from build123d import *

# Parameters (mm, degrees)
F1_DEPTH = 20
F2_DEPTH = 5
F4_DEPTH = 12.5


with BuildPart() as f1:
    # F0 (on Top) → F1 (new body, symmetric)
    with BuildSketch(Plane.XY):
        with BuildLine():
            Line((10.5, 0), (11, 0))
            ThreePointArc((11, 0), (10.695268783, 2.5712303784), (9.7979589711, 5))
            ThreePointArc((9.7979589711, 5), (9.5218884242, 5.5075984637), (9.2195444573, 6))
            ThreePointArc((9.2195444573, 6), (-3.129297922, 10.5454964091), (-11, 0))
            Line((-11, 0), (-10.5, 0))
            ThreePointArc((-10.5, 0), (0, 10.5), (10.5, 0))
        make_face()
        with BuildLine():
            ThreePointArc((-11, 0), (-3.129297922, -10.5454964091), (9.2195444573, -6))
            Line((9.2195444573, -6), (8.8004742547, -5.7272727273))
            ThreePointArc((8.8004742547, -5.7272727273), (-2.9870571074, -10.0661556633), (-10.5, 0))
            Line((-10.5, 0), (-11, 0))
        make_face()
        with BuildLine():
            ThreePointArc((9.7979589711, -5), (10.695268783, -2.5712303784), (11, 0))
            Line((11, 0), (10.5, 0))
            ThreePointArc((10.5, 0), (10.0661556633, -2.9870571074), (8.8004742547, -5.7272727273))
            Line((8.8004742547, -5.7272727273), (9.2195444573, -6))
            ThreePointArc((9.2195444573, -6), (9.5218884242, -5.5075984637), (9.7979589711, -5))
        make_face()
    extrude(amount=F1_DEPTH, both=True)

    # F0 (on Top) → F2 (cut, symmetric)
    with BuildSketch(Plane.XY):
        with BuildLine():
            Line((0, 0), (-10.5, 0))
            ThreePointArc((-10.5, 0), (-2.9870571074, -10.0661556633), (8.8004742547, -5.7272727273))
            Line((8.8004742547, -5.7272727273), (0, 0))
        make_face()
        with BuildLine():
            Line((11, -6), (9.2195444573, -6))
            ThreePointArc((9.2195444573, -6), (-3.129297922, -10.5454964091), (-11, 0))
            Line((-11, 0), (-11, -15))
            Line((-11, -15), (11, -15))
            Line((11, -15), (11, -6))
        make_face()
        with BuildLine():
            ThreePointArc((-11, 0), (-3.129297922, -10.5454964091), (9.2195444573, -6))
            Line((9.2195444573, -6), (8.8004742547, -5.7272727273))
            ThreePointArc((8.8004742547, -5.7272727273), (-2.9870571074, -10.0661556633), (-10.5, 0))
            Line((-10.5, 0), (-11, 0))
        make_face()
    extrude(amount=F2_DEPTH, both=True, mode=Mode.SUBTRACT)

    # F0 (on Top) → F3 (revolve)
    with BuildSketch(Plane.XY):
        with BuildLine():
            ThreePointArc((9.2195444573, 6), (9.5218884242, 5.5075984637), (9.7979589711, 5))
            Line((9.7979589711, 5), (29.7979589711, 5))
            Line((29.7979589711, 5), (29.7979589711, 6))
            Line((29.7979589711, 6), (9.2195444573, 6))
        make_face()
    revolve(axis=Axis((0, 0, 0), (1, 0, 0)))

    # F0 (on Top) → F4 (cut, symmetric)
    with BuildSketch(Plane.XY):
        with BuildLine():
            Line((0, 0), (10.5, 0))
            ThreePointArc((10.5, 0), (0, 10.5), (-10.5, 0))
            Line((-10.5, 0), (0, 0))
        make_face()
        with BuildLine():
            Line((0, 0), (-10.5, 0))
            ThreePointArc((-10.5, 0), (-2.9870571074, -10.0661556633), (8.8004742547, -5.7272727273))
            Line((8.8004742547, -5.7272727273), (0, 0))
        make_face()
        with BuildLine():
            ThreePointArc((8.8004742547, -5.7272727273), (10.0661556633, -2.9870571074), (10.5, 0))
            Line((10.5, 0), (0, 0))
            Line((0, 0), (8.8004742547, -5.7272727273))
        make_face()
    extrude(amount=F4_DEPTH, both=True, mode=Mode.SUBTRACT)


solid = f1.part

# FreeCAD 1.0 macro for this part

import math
import FreeCAD as App
import Part
import Sketcher
from FreeCAD import Vector
Q = App.Units.Quantity

doc = App.newDocument("Part")
params = doc.addObject("Spreadsheet::Sheet", "Params")
for row, (alias, value) in enumerate([
    ("sketch1_radius", "11 mm"),
    ("sketch1_radius2", "10.5 mm"),
    ("pad1_length", "40 mm"),
    ("sketch2_width", "11 mm"),
    ("sketch2_width2", "22 mm"),
    ("sketch2_height", "15 mm"),
    ("sketch2_height2", "9 mm"),
    ("sketch2_length", "0.5 mm"),
    ("pocket1_length", "10 mm"),
    ("sketch3_radius", "11 mm"),
    ("sketch3_width", "20 mm"),
    ("sketch3_height", "1 mm"),
    ("revolution_angle", "360 deg"),
    ("sketch4_radius", "10.5 mm"),
    ("pocket2_length", "25 mm"),
], start=1):
    params.set(f"A{row}", alias)
    params.set(f"B{row}", "=" + value)
    params.setAlias(f"B{row}", alias)

body = doc.addObject("PartDesign::Body", "Body")

# Sketch on XY plane
sketch1 = body.newObject("Sketcher::SketchObject", "Sketch")
sketch1.AttachmentSupport = (doc.getObject("XY_Plane"), [""])
sketch1.MapMode = "FlatFace"
sketch1.addGeometry(Part.ArcOfCircle(Part.Circle(Vector(0, 0, 0), Vector(0, 0, 1), 11), math.radians(0), math.radians(27)), False)
sketch1.addGeometry(Part.ArcOfCircle(Part.Circle(Vector(0, 0, 0), Vector(0, 0, 1), 11), math.radians(27.04), math.radians(33.06)), False)
sketch1.addGeometry(Part.ArcOfCircle(Part.Circle(Vector(0, 0, 0), Vector(0, 0, 1), 11), math.radians(33), math.radians(180)), False)
sketch1.addGeometry(Part.ArcOfCircle(Part.Circle(Vector(0, 0, 0), Vector(0, 0, 1), 11), math.radians(180), math.radians(327)), False)
sketch1.addGeometry(Part.ArcOfCircle(Part.Circle(Vector(0, 0, 0), Vector(0, 0, 1), 11), math.radians(-33.06), math.radians(-27.04)), False)
sketch1.addGeometry(Part.ArcOfCircle(Part.Circle(Vector(0, 0, 0), Vector(0, 0, 1), 11), math.radians(-27), math.radians(0)), False)
sketch1.addGeometry(Part.ArcOfCircle(Part.Circle(Vector(0, 0, 0), Vector(0, 0, 1), 10.5), math.radians(180), math.radians(327)), False)
sketch1.addGeometry(Part.ArcOfCircle(Part.Circle(Vector(0, 0, 0), Vector(0, 0, 1), 10.5), math.radians(0), math.radians(180)), False)
sketch1.addGeometry(Part.ArcOfCircle(Part.Circle(Vector(0, 0, 0), Vector(0, 0, 1), 10.5), math.radians(-33), math.radians(0)), False)
sketch1.addConstraint(Sketcher.Constraint("Tangent", 0, 2, 1, 1))
sketch1.addConstraint(Sketcher.Constraint("Tangent", 1, 2, 2, 1))
sketch1.addConstraint(Sketcher.Constraint("Tangent", 2, 2, 3, 1))
sketch1.addConstraint(Sketcher.Constraint("Tangent", 3, 2, 4, 1))
sketch1.addConstraint(Sketcher.Constraint("Tangent", 4, 2, 5, 1))
sketch1.addConstraint(Sketcher.Constraint("Tangent", 5, 2, 0, 1))
sketch1.addConstraint(Sketcher.Constraint("Tangent", 6, 1, 7, 2))
sketch1.addConstraint(Sketcher.Constraint("Tangent", 7, 1, 8, 2))
sketch1.addConstraint(Sketcher.Constraint("Tangent", 8, 1, 6, 2))
sketch1.addConstraint(Sketcher.Constraint("Coincident", 0, 3, -1, 1))
sketch1.addConstraint(Sketcher.Constraint("Coincident", 2, 3, -1, 1))
sketch1.addConstraint(Sketcher.Constraint("Coincident", 6, 3, -1, 1))
sketch1.addConstraint(Sketcher.Constraint("Equal", 2, 3))
sketch1.addConstraint(Sketcher.Constraint("PointOnObject", 2, 2, -1))
sketch1.addConstraint(Sketcher.Constraint("PointOnObject", 5, 2, -1))
sketch1.addConstraint(Sketcher.Constraint("PointOnObject", 6, 1, -1))
sketch1.addConstraint(Sketcher.Constraint("PointOnObject", 7, 1, -1))
sketch1.addConstraint(Sketcher.Constraint("Vertical", 1, 2, 3, 2))
sketch1.addConstraint(Sketcher.Constraint("Vertical", 0, 2, 4, 2))
sketch1.addConstraint(Sketcher.Constraint("Radius", 0, Q("11 mm")))
sketch1.addConstraint(Sketcher.Constraint("Radius", 6, Q("10.5 mm")))
sketch1.addConstraint(Sketcher.Constraint("DistanceY", -1, 1, 0, 2, Q("5 mm")))
sketch1.addConstraint(Sketcher.Constraint("DistanceY", -1, 1, 1, 2, Q("6 mm")))
sketch1.addConstraint(Sketcher.Constraint("DistanceX", 8, 1, 3, 2, Q("0.41907 mm")))
sketch1.setExpression("Constraints[19]", "Params.sketch1_radius")
sketch1.setExpression("Constraints[20]", "Params.sketch1_radius2")
pad1 = body.newObject("PartDesign::Pad", "Pad")
pad1.Profile = sketch1
pad1.setExpression("Length", "Params.pad1_length")
pad1.Midplane = True

# Sketch on XY plane
sketch2 = body.newObject("Sketcher::SketchObject", "Sketch001")
sketch2.AttachmentSupport = (doc.getObject("XY_Plane"), [""])
sketch2.MapMode = "FlatFace"
sketch2.addGeometry(Part.LineSegment(Vector(0, 0, 0), Vector(-11, 0, 0)), False)
sketch2.addGeometry(Part.LineSegment(Vector(-11, 0, 0), Vector(-11, -15, 0)), False)
sketch2.addGeometry(Part.LineSegment(Vector(-11, -15, 0), Vector(11, -15, 0)), False)
sketch2.addGeometry(Part.LineSegment(Vector(11, -15, 0), Vector(11, -6, 0)), False)
sketch2.addGeometry(Part.LineSegment(Vector(11, -6, 0), Vector(9.22, -6, 0)), False)
sketch2.addGeometry(Part.LineSegment(Vector(9.22, -6, 0), Vector(8.8, -5.73, 0)), False)
sketch2.addGeometry(Part.LineSegment(Vector(8.8, -5.73, 0), Vector(0, 0, 0)), False)
sketch2.addConstraint(Sketcher.Constraint("Coincident", 0, 2, 1, 1))
sketch2.addConstraint(Sketcher.Constraint("Coincident", 1, 2, 2, 1))
sketch2.addConstraint(Sketcher.Constraint("Coincident", 2, 2, 3, 1))
sketch2.addConstraint(Sketcher.Constraint("Coincident", 3, 2, 4, 1))
sketch2.addConstraint(Sketcher.Constraint("Coincident", 4, 2, 5, 1))
sketch2.addConstraint(Sketcher.Constraint("Coincident", 5, 2, 6, 1))
sketch2.addConstraint(Sketcher.Constraint("Coincident", 6, 2, 0, 1))
sketch2.addConstraint(Sketcher.Constraint("Horizontal", 0))
sketch2.addConstraint(Sketcher.Constraint("Vertical", 1))
sketch2.addConstraint(Sketcher.Constraint("Horizontal", 2))
sketch2.addConstraint(Sketcher.Constraint("Vertical", 3))
sketch2.addConstraint(Sketcher.Constraint("Horizontal", 4))
sketch2.addConstraint(Sketcher.Constraint("Coincident", 6, 2, -1, 1))
sketch2.addConstraint(Sketcher.Constraint("Parallel", 5, 6))
sketch2.addConstraint(Sketcher.Constraint("DistanceX", 0, 2, 0, 1, Q("11 mm")))
sketch2.addConstraint(Sketcher.Constraint("DistanceX", 2, 1, 2, 2, Q("22 mm")))
sketch2.addConstraint(Sketcher.Constraint("DistanceY", 1, 2, 1, 1, Q("15 mm")))
sketch2.addConstraint(Sketcher.Constraint("DistanceY", 3, 1, 3, 2, Q("9 mm")))
sketch2.addConstraint(Sketcher.Constraint("Distance", 5, Q("0.5 mm")))
sketch2.addConstraint(Sketcher.Constraint("Distance", 6, Q("10.5 mm")))
sketch2.setExpression("Constraints[14]", "Params.sketch2_width")
sketch2.setExpression("Constraints[15]", "Params.sketch2_width2")
sketch2.setExpression("Constraints[16]", "Params.sketch2_height")
sketch2.setExpression("Constraints[17]", "Params.sketch2_height2")
sketch2.setExpression("Constraints[18]", "Params.sketch2_length")
pocket1 = body.newObject("PartDesign::Pocket", "Pocket")
pocket1.Profile = sketch2
pocket1.setExpression("Length", "Params.pocket1_length")
pocket1.Midplane = True

# Sketch on XY plane
sketch3 = body.newObject("Sketcher::SketchObject", "Sketch002")
sketch3.AttachmentSupport = (doc.getObject("XY_Plane"), [""])
sketch3.MapMode = "FlatFace"
sketch3.addGeometry(Part.ArcOfCircle(Part.Circle(Vector(0, 0, 0), Vector(0, 0, 1), 11), math.radians(27.04), math.radians(33.06)), False)
sketch3.addGeometry(Part.LineSegment(Vector(9.8, 5, 0), Vector(29.8, 5, 0)), False)
sketch3.addGeometry(Part.LineSegment(Vector(29.8, 5, 0), Vector(29.8, 6, 0)), False)
sketch3.addGeometry(Part.LineSegment(Vector(29.8, 6, 0), Vector(9.2, 6, 0)), False)
sketch3.addConstraint(Sketcher.Constraint("Coincident", 0, 1, 1, 1))
sketch3.addConstraint(Sketcher.Constraint("Coincident", 1, 2, 2, 1))
sketch3.addConstraint(Sketcher.Constraint("Coincident", 2, 2, 3, 1))
sketch3.addConstraint(Sketcher.Constraint("Coincident", 3, 2, 0, 2))
sketch3.addConstraint(Sketcher.Constraint("Horizontal", 1))
sketch3.addConstraint(Sketcher.Constraint("Vertical", 2))
sketch3.addConstraint(Sketcher.Constraint("Horizontal", 3))
sketch3.addConstraint(Sketcher.Constraint("Coincident", 0, 3, -1, 1))
sketch3.addConstraint(Sketcher.Constraint("Radius", 0, Q("11 mm")))
sketch3.addConstraint(Sketcher.Constraint("DistanceX", 1, 1, 1, 2, Q("20 mm")))
sketch3.addConstraint(Sketcher.Constraint("DistanceY", 2, 1, 2, 2, Q("1 mm")))
sketch3.addConstraint(Sketcher.Constraint("DistanceY", -1, 1, 0, 1, Q("5 mm")))
sketch3.setExpression("Constraints[8]", "Params.sketch3_radius")
sketch3.setExpression("Constraints[9]", "Params.sketch3_width")
sketch3.setExpression("Constraints[10]", "Params.sketch3_height")
revolution = body.newObject("PartDesign::Revolution", "Revolution")
revolution.Profile = sketch3
revolution.ReferenceAxis = (sketch3, ["H_Axis"])
revolution.setExpression("Angle", "Params.revolution_angle")

# Sketch on XY plane
sketch4 = body.newObject("Sketcher::SketchObject", "Sketch003")
sketch4.AttachmentSupport = (doc.getObject("XY_Plane"), [""])
sketch4.MapMode = "FlatFace"
sketch4.addGeometry(Part.ArcOfCircle(Part.Circle(Vector(0, 0, 0), Vector(0, 0, 1), 10), math.radians(0), math.radians(180)), False)
sketch4.addGeometry(Part.ArcOfCircle(Part.Circle(Vector(0, 0, 0), Vector(0, 0, 1), 10), math.radians(180), math.radians(327)), False)
sketch4.addGeometry(Part.ArcOfCircle(Part.Circle(Vector(0, 0, 0), Vector(0, 0, 1), 10), math.radians(-33), math.radians(0)), False)
sketch4.addConstraint(Sketcher.Constraint("Tangent", 0, 2, 1, 1))
sketch4.addConstraint(Sketcher.Constraint("Tangent", 1, 2, 2, 1))
sketch4.addConstraint(Sketcher.Constraint("Tangent", 2, 2, 0, 1))
sketch4.addConstraint(Sketcher.Constraint("Coincident", 0, 3, -1, 1))
sketch4.addConstraint(Sketcher.Constraint("PointOnObject", 0, 2, -1))
sketch4.addConstraint(Sketcher.Constraint("PointOnObject", 2, 2, -1))
sketch4.addConstraint(Sketcher.Constraint("Radius", 0, Q("10.5 mm")))
sketch4.addConstraint(Sketcher.Constraint("DistanceX", -1, 1, 1, 2, Q("8.800474 mm")))
sketch4.setExpression("Constraints[6]", "Params.sketch4_radius")
pocket2 = body.newObject("PartDesign::Pocket", "Pocket001")
pocket2.Profile = sketch4
pocket2.setExpression("Length", "Params.pocket2_length")
pocket2.Midplane = True

doc.recompute()
